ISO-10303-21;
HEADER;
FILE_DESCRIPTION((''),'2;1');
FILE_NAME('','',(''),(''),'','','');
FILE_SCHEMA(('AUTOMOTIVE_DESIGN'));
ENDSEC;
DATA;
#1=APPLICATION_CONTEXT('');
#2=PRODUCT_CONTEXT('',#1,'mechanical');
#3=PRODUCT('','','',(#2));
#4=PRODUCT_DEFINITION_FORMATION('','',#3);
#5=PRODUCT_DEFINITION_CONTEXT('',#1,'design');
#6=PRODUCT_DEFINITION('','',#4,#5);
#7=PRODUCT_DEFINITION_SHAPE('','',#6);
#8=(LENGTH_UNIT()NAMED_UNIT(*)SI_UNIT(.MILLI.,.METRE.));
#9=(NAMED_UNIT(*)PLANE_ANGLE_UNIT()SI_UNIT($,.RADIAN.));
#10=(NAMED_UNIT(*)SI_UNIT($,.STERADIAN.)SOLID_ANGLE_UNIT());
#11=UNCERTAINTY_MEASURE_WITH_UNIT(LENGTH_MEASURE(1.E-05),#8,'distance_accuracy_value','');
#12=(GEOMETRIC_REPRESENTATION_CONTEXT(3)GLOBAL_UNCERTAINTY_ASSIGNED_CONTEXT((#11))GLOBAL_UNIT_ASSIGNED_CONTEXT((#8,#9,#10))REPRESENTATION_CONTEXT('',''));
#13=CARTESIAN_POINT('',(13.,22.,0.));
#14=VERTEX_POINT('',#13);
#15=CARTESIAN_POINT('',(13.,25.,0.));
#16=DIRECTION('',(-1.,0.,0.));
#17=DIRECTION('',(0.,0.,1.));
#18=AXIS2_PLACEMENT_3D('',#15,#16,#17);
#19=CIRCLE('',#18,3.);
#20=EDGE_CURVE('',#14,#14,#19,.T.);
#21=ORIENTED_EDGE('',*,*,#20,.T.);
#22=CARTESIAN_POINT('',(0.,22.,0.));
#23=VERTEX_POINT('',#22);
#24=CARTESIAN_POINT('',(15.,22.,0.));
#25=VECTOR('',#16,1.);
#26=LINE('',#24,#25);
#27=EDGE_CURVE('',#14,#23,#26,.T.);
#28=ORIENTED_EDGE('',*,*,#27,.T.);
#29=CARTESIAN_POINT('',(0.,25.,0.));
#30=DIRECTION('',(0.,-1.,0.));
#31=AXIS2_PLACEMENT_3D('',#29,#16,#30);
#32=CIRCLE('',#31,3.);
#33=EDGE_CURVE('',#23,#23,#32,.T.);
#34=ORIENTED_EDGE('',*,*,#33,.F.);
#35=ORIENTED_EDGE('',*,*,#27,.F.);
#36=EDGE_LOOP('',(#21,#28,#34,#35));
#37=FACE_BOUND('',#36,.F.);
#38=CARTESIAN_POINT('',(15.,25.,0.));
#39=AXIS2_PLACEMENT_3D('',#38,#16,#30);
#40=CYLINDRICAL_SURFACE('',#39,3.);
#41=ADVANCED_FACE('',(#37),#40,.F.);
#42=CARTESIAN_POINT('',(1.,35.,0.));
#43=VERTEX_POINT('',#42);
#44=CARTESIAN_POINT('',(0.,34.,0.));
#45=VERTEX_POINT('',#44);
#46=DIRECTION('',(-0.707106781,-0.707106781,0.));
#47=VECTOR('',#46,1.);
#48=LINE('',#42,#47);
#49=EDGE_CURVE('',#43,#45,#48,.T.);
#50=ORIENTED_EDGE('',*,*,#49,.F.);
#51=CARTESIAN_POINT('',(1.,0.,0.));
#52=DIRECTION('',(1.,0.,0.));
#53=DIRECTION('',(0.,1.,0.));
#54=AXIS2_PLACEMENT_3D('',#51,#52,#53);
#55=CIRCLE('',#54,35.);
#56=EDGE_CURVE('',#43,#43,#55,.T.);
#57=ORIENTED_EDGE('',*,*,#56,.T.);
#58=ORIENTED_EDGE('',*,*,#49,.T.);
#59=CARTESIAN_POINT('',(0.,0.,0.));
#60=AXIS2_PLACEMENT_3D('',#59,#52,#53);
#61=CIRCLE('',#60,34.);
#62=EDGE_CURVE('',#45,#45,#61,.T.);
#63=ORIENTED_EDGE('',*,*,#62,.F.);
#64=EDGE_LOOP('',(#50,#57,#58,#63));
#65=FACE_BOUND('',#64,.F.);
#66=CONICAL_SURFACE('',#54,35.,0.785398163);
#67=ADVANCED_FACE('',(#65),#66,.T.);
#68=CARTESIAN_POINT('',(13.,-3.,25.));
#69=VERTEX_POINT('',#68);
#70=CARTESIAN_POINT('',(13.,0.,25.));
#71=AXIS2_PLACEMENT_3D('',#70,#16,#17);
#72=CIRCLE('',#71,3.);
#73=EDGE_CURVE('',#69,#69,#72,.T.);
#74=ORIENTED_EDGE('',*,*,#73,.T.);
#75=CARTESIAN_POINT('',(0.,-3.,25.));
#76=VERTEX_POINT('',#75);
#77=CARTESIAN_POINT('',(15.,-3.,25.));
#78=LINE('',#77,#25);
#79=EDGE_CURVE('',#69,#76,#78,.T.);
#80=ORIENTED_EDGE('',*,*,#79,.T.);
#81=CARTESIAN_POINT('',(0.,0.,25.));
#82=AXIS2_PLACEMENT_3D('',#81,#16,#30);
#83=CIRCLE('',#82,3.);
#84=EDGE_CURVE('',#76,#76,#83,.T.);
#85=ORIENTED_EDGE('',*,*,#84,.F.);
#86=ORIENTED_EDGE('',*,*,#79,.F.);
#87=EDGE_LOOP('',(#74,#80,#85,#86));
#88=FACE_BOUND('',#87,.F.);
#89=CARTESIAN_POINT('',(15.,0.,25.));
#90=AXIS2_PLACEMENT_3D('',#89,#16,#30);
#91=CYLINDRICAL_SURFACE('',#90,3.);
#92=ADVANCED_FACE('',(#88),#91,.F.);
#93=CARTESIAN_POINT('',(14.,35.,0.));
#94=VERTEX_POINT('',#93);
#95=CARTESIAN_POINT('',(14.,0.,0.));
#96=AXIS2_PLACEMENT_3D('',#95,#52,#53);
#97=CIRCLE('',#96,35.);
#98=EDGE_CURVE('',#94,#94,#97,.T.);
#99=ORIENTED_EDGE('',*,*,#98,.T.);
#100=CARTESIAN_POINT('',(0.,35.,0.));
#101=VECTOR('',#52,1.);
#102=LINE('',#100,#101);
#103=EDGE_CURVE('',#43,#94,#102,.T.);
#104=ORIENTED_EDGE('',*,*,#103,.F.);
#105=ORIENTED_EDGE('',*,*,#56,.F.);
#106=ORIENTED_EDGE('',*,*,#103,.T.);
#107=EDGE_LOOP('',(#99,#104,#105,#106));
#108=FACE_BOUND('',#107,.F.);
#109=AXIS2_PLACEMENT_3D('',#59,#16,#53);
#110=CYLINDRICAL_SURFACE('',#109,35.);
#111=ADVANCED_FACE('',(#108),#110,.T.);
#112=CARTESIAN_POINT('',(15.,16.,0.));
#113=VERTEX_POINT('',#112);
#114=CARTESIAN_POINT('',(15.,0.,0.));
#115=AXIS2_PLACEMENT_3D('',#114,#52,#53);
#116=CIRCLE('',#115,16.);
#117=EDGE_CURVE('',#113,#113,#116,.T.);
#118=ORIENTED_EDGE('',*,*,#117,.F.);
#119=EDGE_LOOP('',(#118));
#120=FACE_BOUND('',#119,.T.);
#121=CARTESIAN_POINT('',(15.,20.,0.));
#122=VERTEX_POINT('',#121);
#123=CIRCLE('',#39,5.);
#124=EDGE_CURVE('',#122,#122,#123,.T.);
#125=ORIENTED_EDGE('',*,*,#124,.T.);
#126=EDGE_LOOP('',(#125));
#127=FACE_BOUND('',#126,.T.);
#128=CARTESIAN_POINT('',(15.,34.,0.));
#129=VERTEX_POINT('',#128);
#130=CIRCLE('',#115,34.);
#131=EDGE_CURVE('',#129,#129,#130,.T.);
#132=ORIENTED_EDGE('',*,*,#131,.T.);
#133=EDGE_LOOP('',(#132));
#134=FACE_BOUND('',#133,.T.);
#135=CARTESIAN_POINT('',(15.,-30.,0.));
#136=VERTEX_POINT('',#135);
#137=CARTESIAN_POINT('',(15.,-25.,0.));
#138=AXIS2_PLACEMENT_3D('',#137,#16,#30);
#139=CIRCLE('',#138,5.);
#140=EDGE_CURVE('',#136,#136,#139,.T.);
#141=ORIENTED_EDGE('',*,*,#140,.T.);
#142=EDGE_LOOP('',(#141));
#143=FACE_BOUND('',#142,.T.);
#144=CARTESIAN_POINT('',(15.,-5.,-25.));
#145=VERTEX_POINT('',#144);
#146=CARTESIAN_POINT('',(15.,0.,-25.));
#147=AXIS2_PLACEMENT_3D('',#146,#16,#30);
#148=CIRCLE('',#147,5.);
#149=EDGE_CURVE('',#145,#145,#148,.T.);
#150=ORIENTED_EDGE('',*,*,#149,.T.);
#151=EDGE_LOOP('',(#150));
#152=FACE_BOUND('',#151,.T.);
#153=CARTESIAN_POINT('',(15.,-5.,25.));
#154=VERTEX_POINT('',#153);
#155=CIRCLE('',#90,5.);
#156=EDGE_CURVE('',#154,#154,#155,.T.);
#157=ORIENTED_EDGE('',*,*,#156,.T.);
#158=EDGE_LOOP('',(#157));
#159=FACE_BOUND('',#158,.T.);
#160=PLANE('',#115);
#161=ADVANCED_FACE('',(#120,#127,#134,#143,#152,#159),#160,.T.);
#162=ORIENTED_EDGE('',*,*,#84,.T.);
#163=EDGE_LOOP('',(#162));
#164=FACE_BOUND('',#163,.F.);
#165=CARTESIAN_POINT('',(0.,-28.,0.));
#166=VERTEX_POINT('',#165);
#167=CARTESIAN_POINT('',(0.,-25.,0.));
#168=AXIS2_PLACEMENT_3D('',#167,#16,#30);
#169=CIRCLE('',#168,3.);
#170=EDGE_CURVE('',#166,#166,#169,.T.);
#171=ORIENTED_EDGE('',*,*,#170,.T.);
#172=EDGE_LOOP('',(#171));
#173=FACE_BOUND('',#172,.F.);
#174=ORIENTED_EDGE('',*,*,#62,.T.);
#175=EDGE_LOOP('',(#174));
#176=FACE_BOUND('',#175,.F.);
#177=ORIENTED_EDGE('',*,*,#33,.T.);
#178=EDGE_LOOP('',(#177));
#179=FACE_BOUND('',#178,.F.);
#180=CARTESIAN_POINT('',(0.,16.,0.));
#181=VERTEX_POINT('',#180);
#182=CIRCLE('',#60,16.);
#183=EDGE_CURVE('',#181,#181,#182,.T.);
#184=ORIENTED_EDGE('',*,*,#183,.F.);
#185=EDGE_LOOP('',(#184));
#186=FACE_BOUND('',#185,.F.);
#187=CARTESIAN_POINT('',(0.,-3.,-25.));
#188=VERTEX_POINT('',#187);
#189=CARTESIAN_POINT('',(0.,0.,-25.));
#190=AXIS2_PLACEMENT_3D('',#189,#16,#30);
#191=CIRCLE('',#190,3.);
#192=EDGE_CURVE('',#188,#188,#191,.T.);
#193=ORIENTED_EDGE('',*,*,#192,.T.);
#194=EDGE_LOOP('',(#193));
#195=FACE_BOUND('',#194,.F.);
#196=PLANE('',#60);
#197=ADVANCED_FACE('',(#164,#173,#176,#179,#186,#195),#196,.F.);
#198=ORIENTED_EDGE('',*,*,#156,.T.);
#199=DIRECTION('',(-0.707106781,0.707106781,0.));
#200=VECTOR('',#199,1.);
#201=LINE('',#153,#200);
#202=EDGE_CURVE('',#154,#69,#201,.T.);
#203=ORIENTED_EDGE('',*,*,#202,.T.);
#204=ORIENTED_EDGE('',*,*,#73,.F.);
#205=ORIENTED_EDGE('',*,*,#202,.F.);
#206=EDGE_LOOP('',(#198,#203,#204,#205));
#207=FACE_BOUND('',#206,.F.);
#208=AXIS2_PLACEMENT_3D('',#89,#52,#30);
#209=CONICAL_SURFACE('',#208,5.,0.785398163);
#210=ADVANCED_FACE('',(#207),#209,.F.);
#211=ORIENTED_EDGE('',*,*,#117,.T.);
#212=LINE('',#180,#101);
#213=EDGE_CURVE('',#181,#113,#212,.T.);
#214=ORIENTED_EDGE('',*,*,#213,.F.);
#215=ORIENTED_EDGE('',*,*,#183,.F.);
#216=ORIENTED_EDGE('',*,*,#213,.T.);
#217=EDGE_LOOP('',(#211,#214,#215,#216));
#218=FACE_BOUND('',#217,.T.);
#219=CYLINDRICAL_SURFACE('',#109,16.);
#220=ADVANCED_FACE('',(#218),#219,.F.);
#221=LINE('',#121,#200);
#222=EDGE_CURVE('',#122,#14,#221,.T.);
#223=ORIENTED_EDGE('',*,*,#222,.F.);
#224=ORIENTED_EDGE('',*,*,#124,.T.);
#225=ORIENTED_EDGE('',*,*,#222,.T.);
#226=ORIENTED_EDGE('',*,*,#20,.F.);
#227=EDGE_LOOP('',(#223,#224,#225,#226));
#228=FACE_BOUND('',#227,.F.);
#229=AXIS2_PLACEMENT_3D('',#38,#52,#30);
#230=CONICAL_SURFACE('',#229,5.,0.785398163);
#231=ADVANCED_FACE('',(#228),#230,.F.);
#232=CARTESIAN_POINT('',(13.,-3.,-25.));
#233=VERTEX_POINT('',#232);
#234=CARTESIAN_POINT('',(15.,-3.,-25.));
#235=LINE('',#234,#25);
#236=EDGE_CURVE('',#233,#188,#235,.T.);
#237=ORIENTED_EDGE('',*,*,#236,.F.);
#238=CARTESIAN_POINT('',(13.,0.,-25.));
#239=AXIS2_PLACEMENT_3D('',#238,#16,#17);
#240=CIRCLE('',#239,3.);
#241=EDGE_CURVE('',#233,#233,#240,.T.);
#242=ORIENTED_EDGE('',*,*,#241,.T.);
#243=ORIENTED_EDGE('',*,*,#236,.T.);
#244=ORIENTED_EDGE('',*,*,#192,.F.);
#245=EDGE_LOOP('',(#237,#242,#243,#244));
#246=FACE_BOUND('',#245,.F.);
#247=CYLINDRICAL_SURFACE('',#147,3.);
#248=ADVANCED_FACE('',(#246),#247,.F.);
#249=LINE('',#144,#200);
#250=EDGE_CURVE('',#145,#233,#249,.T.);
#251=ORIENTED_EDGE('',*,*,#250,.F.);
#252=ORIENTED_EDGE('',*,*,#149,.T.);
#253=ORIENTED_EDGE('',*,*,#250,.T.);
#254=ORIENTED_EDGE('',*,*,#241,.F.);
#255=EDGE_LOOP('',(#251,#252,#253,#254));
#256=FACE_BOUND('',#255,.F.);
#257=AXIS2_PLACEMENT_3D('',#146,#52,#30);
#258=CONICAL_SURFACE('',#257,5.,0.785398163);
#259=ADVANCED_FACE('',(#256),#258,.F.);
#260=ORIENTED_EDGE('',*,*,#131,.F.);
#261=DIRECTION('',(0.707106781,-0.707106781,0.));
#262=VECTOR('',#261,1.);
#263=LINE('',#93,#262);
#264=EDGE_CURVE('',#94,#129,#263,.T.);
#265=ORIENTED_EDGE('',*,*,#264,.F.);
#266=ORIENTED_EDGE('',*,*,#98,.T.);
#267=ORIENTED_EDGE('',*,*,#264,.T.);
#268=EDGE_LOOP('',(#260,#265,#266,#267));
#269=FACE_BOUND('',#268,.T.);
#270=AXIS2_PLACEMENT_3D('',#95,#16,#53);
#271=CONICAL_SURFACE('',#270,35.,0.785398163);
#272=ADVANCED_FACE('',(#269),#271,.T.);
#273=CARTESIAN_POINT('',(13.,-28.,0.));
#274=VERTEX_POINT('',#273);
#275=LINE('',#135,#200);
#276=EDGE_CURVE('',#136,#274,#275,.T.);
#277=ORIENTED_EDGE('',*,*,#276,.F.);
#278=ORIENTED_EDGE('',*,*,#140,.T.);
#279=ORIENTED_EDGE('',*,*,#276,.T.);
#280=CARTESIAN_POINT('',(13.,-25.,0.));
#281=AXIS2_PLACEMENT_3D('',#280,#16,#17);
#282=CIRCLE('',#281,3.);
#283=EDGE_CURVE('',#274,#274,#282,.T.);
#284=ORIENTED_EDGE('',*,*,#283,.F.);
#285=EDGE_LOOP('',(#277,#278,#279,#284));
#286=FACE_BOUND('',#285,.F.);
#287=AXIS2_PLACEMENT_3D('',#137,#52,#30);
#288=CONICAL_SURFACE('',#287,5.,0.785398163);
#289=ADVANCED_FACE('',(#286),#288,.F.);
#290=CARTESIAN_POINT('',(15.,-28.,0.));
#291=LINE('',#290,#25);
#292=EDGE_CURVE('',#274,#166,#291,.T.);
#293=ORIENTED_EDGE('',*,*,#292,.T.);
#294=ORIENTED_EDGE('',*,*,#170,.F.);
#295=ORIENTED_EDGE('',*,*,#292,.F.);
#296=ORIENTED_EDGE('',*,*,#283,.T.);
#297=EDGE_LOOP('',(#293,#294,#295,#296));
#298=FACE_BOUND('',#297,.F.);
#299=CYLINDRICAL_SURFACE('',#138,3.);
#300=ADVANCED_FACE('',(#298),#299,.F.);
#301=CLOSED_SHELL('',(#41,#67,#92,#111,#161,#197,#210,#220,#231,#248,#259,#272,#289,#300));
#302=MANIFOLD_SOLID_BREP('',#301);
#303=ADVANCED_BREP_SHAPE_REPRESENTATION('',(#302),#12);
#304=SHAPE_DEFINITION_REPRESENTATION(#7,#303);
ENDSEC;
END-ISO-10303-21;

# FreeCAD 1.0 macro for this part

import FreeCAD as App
import Part
import Sketcher
from FreeCAD import Vector


def edges_at(feature, points):
    """Names of the edges that pass closest to the given points."""
    edges = feature.Shape.Edges
    near = lambda p: min(range(len(edges)), key=lambda i: edges[i].distToShape(Part.Vertex(*p))[0])
    return sorted({f"Edge{near(p) + 1}" for p in points})

doc = App.newDocument("Part")
body = doc.addObject("PartDesign::Body", "Body")

sketch1 = body.newObject("Sketcher::SketchObject", "Sketch")
sketch1.AttachmentSupport = (doc.getObject("YZ_Plane"), [""])
sketch1.MapMode = "FlatFace"
sketch1.addGeometry([
    Part.Circle(Vector(0, 0, 0), Vector(0, 0, 1), 35),
    Part.Circle(Vector(0, 0, 0), Vector(0, 0, 1), 16),
], False)
sketch1.addConstraint([
    Sketcher.Constraint("Coincident", 0, 3, -1, 1),
    Sketcher.Constraint("Coincident", 1, 3, -1, 1),
    Sketcher.Constraint("Diameter", 0, 70.0),
    Sketcher.Constraint("Diameter", 1, 32.0),
])
pad1 = body.newObject("PartDesign::Pad", "Pad")
pad1.Profile = sketch1
pad1.Length = 15
doc.recompute()

chamfer = body.newObject("PartDesign::Chamfer", "Chamfer")
chamfer.Base = (pad1, edges_at(pad1, [(15, -35, 0), (0, -35, 0)]))
chamfer.Size = 1

sketch2 = body.newObject("Sketcher::SketchObject", "Sketch001")
sketch2.AttachmentSupport = (doc.getObject("YZ_Plane"), [""])
sketch2.MapMode = "FlatFace"
sketch2.AttachmentOffset = App.Placement(Vector(0, 0, 15), App.Rotation())
sketch2.addGeometry([
    Part.Circle(Vector(0, 25, 0), Vector(0, 0, 1), 3),
    Part.Circle(Vector(-25, 0, 0), Vector(0, 0, 1), 3),
    Part.Circle(Vector(25, 0, 0), Vector(0, 0, 1), 3),
    Part.Circle(Vector(0, -25, 0), Vector(0, 0, 1), 3),
], False)
sketch2.addConstraint([
    Sketcher.Constraint("Equal", 0, 1),
    Sketcher.Constraint("Equal", 1, 2),
    Sketcher.Constraint("Equal", 2, 3),
    Sketcher.Constraint("Symmetric", 1, 3, 2, 3, -1, 1),
    Sketcher.Constraint("Symmetric", 0, 3, 3, 3, -1, 1),
    Sketcher.Constraint("PointOnObject", 0, 3, -2),
    Sketcher.Constraint("PointOnObject", 1, 3, -1),
    Sketcher.Constraint("Diameter", 0, 6.0),
    Sketcher.Constraint("DistanceY", -1, 1, 0, 3, 25.0),
    Sketcher.Constraint("DistanceX", 1, 3, -1, 1, 25.0),
])
doc.recompute()
hole = body.newObject("PartDesign::Hole", "Hole")
hole.Profile = sketch2
hole.ThreadType = "None"
hole.Diameter = 6
hole.DepthType = "ThroughAll"
hole.HoleCutType = "Countersink"
hole.HoleCutDiameter = 10
hole.HoleCutCountersinkAngle = 90

doc.recompute()
